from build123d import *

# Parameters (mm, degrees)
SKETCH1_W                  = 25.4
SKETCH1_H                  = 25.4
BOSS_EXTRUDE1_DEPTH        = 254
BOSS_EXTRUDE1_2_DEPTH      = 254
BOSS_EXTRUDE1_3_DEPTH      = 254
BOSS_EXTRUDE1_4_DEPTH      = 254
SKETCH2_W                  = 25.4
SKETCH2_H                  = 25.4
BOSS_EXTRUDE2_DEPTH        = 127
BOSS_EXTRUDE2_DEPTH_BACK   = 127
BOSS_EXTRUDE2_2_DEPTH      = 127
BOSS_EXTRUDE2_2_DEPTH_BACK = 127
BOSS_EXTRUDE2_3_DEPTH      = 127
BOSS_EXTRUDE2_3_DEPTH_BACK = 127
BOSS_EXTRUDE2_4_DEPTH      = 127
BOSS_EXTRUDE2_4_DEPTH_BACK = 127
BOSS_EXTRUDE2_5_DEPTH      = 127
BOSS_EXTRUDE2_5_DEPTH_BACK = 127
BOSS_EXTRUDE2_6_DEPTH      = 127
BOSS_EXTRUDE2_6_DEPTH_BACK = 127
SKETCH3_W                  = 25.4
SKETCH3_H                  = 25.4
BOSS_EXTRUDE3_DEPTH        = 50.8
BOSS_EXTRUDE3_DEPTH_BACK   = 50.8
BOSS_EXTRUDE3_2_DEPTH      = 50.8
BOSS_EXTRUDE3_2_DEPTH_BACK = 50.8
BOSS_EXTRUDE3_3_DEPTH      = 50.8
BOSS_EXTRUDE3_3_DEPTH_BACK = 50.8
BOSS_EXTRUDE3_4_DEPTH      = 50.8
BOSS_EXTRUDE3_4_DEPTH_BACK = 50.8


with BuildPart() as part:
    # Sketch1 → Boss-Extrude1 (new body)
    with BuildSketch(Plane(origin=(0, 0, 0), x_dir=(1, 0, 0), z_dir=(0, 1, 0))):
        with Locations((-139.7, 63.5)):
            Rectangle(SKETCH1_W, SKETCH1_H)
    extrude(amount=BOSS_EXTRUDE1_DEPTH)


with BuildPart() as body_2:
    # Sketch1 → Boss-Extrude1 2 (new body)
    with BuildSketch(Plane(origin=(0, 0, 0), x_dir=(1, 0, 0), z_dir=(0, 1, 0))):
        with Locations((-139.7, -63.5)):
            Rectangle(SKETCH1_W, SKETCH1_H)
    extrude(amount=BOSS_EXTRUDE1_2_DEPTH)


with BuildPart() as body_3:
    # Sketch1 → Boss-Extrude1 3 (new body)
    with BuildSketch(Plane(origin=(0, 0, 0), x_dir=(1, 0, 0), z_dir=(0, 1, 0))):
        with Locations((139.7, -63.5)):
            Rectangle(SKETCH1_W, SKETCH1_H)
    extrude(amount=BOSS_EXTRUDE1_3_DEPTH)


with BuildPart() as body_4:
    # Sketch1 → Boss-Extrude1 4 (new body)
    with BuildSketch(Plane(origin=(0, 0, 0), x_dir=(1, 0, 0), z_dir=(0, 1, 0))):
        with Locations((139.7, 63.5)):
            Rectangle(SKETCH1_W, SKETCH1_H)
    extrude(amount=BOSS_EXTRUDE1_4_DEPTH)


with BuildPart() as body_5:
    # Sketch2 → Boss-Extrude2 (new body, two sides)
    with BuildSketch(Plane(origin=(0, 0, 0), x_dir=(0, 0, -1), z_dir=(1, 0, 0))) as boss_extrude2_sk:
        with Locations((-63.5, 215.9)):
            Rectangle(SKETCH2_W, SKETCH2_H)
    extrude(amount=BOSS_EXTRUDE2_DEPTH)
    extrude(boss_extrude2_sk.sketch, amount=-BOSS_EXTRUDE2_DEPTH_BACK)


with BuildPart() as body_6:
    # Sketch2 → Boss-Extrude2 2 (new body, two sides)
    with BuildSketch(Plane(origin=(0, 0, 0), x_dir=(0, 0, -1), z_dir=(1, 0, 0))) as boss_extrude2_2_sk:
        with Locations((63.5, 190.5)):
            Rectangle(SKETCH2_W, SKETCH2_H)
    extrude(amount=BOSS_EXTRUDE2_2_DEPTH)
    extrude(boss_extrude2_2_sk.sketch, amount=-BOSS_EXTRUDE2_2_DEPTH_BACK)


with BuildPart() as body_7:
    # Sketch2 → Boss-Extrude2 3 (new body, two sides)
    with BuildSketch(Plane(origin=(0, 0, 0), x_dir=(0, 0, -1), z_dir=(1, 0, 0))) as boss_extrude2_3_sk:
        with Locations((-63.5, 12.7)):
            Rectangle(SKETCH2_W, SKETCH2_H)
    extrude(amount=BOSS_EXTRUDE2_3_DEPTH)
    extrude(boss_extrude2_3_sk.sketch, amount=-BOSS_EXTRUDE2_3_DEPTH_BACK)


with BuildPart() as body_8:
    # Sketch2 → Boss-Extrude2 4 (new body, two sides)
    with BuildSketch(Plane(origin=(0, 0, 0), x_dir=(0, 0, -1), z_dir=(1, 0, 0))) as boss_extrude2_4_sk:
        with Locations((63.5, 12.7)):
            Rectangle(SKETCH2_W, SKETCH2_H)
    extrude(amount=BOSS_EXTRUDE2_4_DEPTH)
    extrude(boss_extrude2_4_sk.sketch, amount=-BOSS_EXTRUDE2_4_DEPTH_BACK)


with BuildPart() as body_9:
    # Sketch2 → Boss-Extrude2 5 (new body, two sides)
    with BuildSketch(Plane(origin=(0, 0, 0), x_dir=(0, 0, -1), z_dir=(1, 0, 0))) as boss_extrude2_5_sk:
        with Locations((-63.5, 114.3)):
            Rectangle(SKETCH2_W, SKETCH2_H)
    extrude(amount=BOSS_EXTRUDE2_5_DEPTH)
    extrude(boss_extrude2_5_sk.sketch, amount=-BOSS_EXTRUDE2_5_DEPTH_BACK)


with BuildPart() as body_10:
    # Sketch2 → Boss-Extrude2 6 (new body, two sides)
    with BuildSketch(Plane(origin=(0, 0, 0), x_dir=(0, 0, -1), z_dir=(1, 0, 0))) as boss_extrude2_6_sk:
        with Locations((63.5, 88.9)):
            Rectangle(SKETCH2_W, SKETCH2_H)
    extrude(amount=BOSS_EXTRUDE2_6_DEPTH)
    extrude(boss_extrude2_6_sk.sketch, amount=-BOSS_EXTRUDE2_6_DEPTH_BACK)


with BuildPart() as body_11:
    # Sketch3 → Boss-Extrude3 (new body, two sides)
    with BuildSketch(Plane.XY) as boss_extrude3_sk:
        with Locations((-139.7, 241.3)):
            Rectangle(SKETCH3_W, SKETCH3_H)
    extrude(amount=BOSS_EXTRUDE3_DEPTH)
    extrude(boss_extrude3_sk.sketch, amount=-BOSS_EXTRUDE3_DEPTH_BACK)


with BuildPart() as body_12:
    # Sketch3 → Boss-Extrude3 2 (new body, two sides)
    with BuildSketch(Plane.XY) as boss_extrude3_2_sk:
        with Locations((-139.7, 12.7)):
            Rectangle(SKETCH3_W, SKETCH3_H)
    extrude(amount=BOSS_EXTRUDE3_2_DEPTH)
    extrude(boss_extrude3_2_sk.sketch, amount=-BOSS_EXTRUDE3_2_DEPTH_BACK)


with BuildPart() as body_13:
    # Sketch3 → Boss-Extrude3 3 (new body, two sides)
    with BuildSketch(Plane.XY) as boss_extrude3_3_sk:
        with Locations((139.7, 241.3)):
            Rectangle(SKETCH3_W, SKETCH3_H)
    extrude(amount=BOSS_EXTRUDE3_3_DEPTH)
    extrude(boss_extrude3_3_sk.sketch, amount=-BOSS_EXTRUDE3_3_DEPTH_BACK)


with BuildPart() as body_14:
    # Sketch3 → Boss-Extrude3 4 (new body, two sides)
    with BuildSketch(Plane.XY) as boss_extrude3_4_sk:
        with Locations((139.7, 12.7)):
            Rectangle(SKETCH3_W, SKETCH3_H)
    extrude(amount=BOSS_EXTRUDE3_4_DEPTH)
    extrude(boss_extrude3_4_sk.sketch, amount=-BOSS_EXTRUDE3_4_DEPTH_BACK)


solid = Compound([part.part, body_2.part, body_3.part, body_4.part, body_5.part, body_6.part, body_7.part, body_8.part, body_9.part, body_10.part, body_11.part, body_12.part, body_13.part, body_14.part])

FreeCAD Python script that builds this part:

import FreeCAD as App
import Part
import Sketcher
from FreeCAD import Vector
Q = App.Units.Quantity


def add_polygon(sketch, points):
    """Adds a closed chain of lines whose ends are joined by coincident constraints."""
    first, n = sketch.GeometryCount, len(points)
    for a, b in zip(points, points[1:] + points[:1]):
        sketch.addGeometry(Part.LineSegment(App.Vector(*a, 0), App.Vector(*b, 0)), False)
    for i in range(n):
        sketch.addConstraint(Sketcher.Constraint("Coincident", first + i, 2, first + (i + 1) % n, 1))

doc = App.newDocument("Part")
body = doc.addObject("PartDesign::Body", "Body")

# Sketch on XZ plane
sketch1 = doc.addObject("Sketcher::SketchObject", "Sketch")
body.addObject(sketch1)
sketch1.AttachmentSupport = (doc.XZ_Plane, [""])
sketch1.MapMode = "FlatFace"
add_polygon(sketch1, [(-152.4, -76.2), (-152.4, -50.8), (-127, -50.8), (-127, -76.2)])  # lines 0-3
sketch1.addConstraint(Sketcher.Constraint("Vertical", 0))
sketch1.addConstraint(Sketcher.Constraint("Horizontal", 1))
sketch1.addConstraint(Sketcher.Constraint("Vertical", 2))
sketch1.addConstraint(Sketcher.Constraint("Horizontal", 3))
sketch1.addConstraint(Sketcher.Constraint("Equal", 3, 0))
sketch1.addConstraint(Sketcher.Constraint("DistanceX", 1, 1, 1, 2, Q("1 in")))
sketch1.addConstraint(Sketcher.Constraint("DistanceX", 0, 2, -1, 1, Q("6 in")))
sketch1.addConstraint(Sketcher.Constraint("DistanceY", 0, 2, -1, 1, Q("2 in")))
pad1 = doc.addObject("PartDesign::Pad", "Pad")
body.addObject(pad1)
pad1.Profile = sketch1
pad1.Length = Q("10 in")
pad1.Reversed = True
body2 = doc.addObject("PartDesign::Body", "Body001")

# Sketch on XZ plane
sketch2 = doc.addObject("Sketcher::SketchObject", "Sketch001")
body2.addObject(sketch2)
sketch2.AttachmentSupport = (doc.getObject("XZ_Plane001"), [""])
sketch2.MapMode = "FlatFace"
add_polygon(sketch2, [(-152.4, 50.8), (-152.4, 76.2), (-127, 76.2), (-127, 50.8)])  # lines 0-3
sketch2.addConstraint(Sketcher.Constraint("Vertical", 0))
sketch2.addConstraint(Sketcher.Constraint("Horizontal", 1))
sketch2.addConstraint(Sketcher.Constraint("Vertical", 2))
sketch2.addConstraint(Sketcher.Constraint("Horizontal", 3))
sketch2.addConstraint(Sketcher.Constraint("Equal", 3, 0))
sketch2.addConstraint(Sketcher.Constraint("DistanceX", 1, 1, 1, 2, Q("1 in")))
sketch2.addConstraint(Sketcher.Constraint("DistanceX", 0, 2, -1, 1, Q("6 in")))
sketch2.addConstraint(Sketcher.Constraint("DistanceY", -1, 1, 0, 2, Q("3 in")))
pad2 = doc.addObject("PartDesign::Pad", "Pad001")
body2.addObject(pad2)
pad2.Profile = sketch2
pad2.Length = Q("10 in")
pad2.Reversed = True
body3 = doc.addObject("PartDesign::Body", "Body002")

# Sketch on XZ plane
sketch3 = doc.addObject("Sketcher::SketchObject", "Sketch002")
body3.addObject(sketch3)
sketch3.AttachmentSupport = (doc.getObject("XZ_Plane002"), [""])
sketch3.MapMode = "FlatFace"
add_polygon(sketch3, [(127, 50.8), (127, 76.2), (152.4, 76.2), (152.4, 50.8)])  # lines 0-3
sketch3.addConstraint(Sketcher.Constraint("Vertical", 0))
sketch3.addConstraint(Sketcher.Constraint("Horizontal", 1))
sketch3.addConstraint(Sketcher.Constraint("Vertical", 2))
sketch3.addConstraint(Sketcher.Constraint("Horizontal", 3))
sketch3.addConstraint(Sketcher.Constraint("Equal", 3, 0))
sketch3.addConstraint(Sketcher.Constraint("DistanceX", 1, 1, 1, 2, Q("1 in")))
sketch3.addConstraint(Sketcher.Constraint("DistanceX", -1, 1, 0, 2, Q("5 in")))
sketch3.addConstraint(Sketcher.Constraint("DistanceY", -1, 1, 0, 2, Q("3 in")))
pad3 = doc.addObject("PartDesign::Pad", "Pad002")
body3.addObject(pad3)
pad3.Profile = sketch3
pad3.Length = Q("10 in")
pad3.Reversed = True
body4 = doc.addObject("PartDesign::Body", "Body003")

# Sketch on XZ plane
sketch4 = doc.addObject("Sketcher::SketchObject", "Sketch003")
body4.addObject(sketch4)
sketch4.AttachmentSupport = (doc.getObject("XZ_Plane003"), [""])
sketch4.MapMode = "FlatFace"
add_polygon(sketch4, [(127, -76.2), (127, -50.8), (152.4, -50.8), (152.4, -76.2)])  # lines 0-3
sketch4.addConstraint(Sketcher.Constraint("Vertical", 0))
sketch4.addConstraint(Sketcher.Constraint("Horizontal", 1))
sketch4.addConstraint(Sketcher.Constraint("Vertical", 2))
sketch4.addConstraint(Sketcher.Constraint("Horizontal", 3))
sketch4.addConstraint(Sketcher.Constraint("Equal", 3, 0))
sketch4.addConstraint(Sketcher.Constraint("DistanceX", 1, 1, 1, 2, Q("1 in")))
sketch4.addConstraint(Sketcher.Constraint("DistanceX", -1, 1, 0, 2, Q("5 in")))
sketch4.addConstraint(Sketcher.Constraint("DistanceY", 0, 2, -1, 1, Q("2 in")))
pad4 = doc.addObject("PartDesign::Pad", "Pad003")
body4.addObject(pad4)
pad4.Profile = sketch4
pad4.Length = Q("10 in")
pad4.Reversed = True
body5 = doc.addObject("PartDesign::Body", "Body004")

# Sketch on YZ plane
sketch5 = doc.addObject("Sketcher::SketchObject", "Sketch004")
body5.addObject(sketch5)
sketch5.AttachmentSupport = (doc.getObject("YZ_Plane004"), [""])
sketch5.MapMode = "FlatFace"
add_polygon(sketch5, [(228.6, 76.2), (203.2, 76.2), (203.2, 50.8), (228.6, 50.8)])  # lines 0-3
sketch5.addConstraint(Sketcher.Constraint("Horizontal", 0))
sketch5.addConstraint(Sketcher.Constraint("Vertical", 1))
sketch5.addConstraint(Sketcher.Constraint("Horizontal", 2))
sketch5.addConstraint(Sketcher.Constraint("Vertical", 3))
sketch5.addConstraint(Sketcher.Constraint("Equal", 2, 1))
sketch5.addConstraint(Sketcher.Constraint("DistanceX", 0, 2, 0, 1, Q("1 in")))
sketch5.addConstraint(Sketcher.Constraint("DistanceX", -1, 1, 0, 2, Q("8 in")))
sketch5.addConstraint(Sketcher.Constraint("DistanceY", -1, 1, 0, 2, Q("3 in")))
pad5 = doc.addObject("PartDesign::Pad", "Pad004")
body5.addObject(pad5)
pad5.Profile = sketch5
pad5.Type = "TwoLengths"
pad5.Length = Q("5 in")
pad5.Length2 = Q("5 in")
body6 = doc.addObject("PartDesign::Body", "Body005")

# Sketch on YZ plane
sketch6 = doc.addObject("Sketcher::SketchObject", "Sketch005")
body6.addObject(sketch6)
sketch6.AttachmentSupport = (doc.getObject("YZ_Plane005"), [""])
sketch6.MapMode = "FlatFace"
add_polygon(sketch6, [(203.2, -50.8), (177.8, -50.8), (177.8, -76.2), (203.2, -76.2)])  # lines 0-3
sketch6.addConstraint(Sketcher.Constraint("Horizontal", 0))
sketch6.addConstraint(Sketcher.Constraint("Vertical", 1))
sketch6.addConstraint(Sketcher.Constraint("Horizontal", 2))
sketch6.addConstraint(Sketcher.Constraint("Vertical", 3))
sketch6.addConstraint(Sketcher.Constraint("Equal", 2, 1))
sketch6.addConstraint(Sketcher.Constraint("DistanceX", 0, 2, 0, 1, Q("1 in")))
sketch6.addConstraint(Sketcher.Constraint("DistanceX", -1, 1, 0, 2, Q("7 in")))
sketch6.addConstraint(Sketcher.Constraint("DistanceY", 0, 2, -1, 1, Q("2 in")))
pad6 = doc.addObject("PartDesign::Pad", "Pad005")
body6.addObject(pad6)
pad6.Profile = sketch6
pad6.Type = "TwoLengths"
pad6.Length = Q("5 in")
pad6.Length2 = Q("5 in")
body7 = doc.addObject("PartDesign::Body", "Body006")

# Sketch on YZ plane
sketch7 = doc.addObject("Sketcher::SketchObject", "Sketch006")
body7.addObject(sketch7)
sketch7.AttachmentSupport = (doc.getObject("YZ_Plane006"), [""])
sketch7.MapMode = "FlatFace"
add_polygon(sketch7, [(25.4, 76.2), (0, 76.2), (0, 50.8), (25.4, 50.8)])  # lines 0-3
sketch7.addConstraint(Sketcher.Constraint("Horizontal", 0))
sketch7.addConstraint(Sketcher.Constraint("Vertical", 1))
sketch7.addConstraint(Sketcher.Constraint("Horizontal", 2))
sketch7.addConstraint(Sketcher.Constraint("Vertical", 3))
sketch7.addConstraint(Sketcher.Constraint("PointOnObject", 0, 2, -2))
sketch7.addConstraint(Sketcher.Constraint("Equal", 2, 1))
sketch7.addConstraint(Sketcher.Constraint("DistanceX", 0, 2, 0, 1, Q("1 in")))
sketch7.addConstraint(Sketcher.Constraint("DistanceY", -1, 1, 0, 2, Q("3 in")))
pad7 = doc.addObject("PartDesign::Pad", "Pad006")
body7.addObject(pad7)
pad7.Profile = sketch7
pad7.Type = "TwoLengths"
pad7.Length = Q("5 in")
pad7.Length2 = Q("5 in")
body8 = doc.addObject("PartDesign::Body", "Body007")

# Sketch on YZ plane
sketch8 = doc.addObject("Sketcher::SketchObject", "Sketch007")
body8.addObject(sketch8)
sketch8.AttachmentSupport = (doc.getObject("YZ_Plane007"), [""])
sketch8.MapMode = "FlatFace"
add_polygon(sketch8, [(25.4, -50.8), (0, -50.8), (0, -76.2), (25.4, -76.2)])  # lines 0-3
sketch8.addConstraint(Sketcher.Constraint("Horizontal", 0))
sketch8.addConstraint(Sketcher.Constraint("Vertical", 1))
sketch8.addConstraint(Sketcher.Constraint("Horizontal", 2))
sketch8.addConstraint(Sketcher.Constraint("Vertical", 3))
sketch8.addConstraint(Sketcher.Constraint("PointOnObject", 0, 2, -2))
sketch8.addConstraint(Sketcher.Constraint("Equal", 2, 1))
sketch8.addConstraint(Sketcher.Constraint("DistanceX", 0, 2, 0, 1, Q("1 in")))
sketch8.addConstraint(Sketcher.Constraint("DistanceY", 0, 2, -1, 1, Q("2 in")))
pad8 = doc.addObject("PartDesign::Pad", "Pad007")
body8.addObject(pad8)
pad8.Profile = sketch8
pad8.Type = "TwoLengths"
pad8.Length = Q("5 in")
pad8.Length2 = Q("5 in")
body9 = doc.addObject("PartDesign::Body", "Body008")

# Sketch on YZ plane
sketch9 = doc.addObject("Sketcher::SketchObject", "Sketch008")
body9.addObject(sketch9)
sketch9.AttachmentSupport = (doc.getObject("YZ_Plane008"), [""])
sketch9.MapMode = "FlatFace"
add_polygon(sketch9, [(127, 76.2), (101.6, 76.2), (101.6, 50.8), (127, 50.8)])  # lines 0-3
sketch9.addConstraint(Sketcher.Constraint("Horizontal", 0))
sketch9.addConstraint(Sketcher.Constraint("Vertical", 1))
sketch9.addConstraint(Sketcher.Constraint("Horizontal", 2))
sketch9.addConstraint(Sketcher.Constraint("Vertical", 3))
sketch9.addConstraint(Sketcher.Constraint("Equal", 2, 1))
sketch9.addConstraint(Sketcher.Constraint("DistanceX", 0, 2, 0, 1, Q("1 in")))
sketch9.addConstraint(Sketcher.Constraint("DistanceX", -1, 1, 0, 2, Q("4 in")))
sketch9.addConstraint(Sketcher.Constraint("DistanceY", -1, 1, 0, 2, Q("3 in")))
pad9 = doc.addObject("PartDesign::Pad", "Pad008")
body9.addObject(pad9)
pad9.Profile = sketch9
pad9.Type = "TwoLengths"
pad9.Length = Q("5 in")
pad9.Length2 = Q("5 in")
body10 = doc.addObject("PartDesign::Body", "Body009")

# Sketch on YZ plane
sketch10 = doc.addObject("Sketcher::SketchObject", "Sketch009")
body10.addObject(sketch10)
sketch10.AttachmentSupport = (doc.getObject("YZ_Plane009"), [""])
sketch10.MapMode = "FlatFace"
add_polygon(sketch10, [(101.6, -50.8), (76.2, -50.8), (76.2, -76.2), (101.6, -76.2)])  # lines 0-3
sketch10.addConstraint(Sketcher.Constraint("Horizontal", 0))
sketch10.addConstraint(Sketcher.Constraint("Vertical", 1))
sketch10.addConstraint(Sketcher.Constraint("Horizontal", 2))
sketch10.addConstraint(Sketcher.Constraint("Vertical", 3))
sketch10.addConstraint(Sketcher.Constraint("Equal", 2, 1))
sketch10.addConstraint(Sketcher.Constraint("DistanceX", 0, 2, 0, 1, Q("1 in")))
sketch10.addConstraint(Sketcher.Constraint("DistanceX", -1, 1, 0, 2, Q("3 in")))
sketch10.addConstraint(Sketcher.Constraint("DistanceY", 0, 2, -1, 1, Q("2 in")))
pad10 = doc.addObject("PartDesign::Pad", "Pad009")
body10.addObject(pad10)
pad10.Profile = sketch10
pad10.Type = "TwoLengths"
pad10.Length = Q("5 in")
pad10.Length2 = Q("5 in")
body11 = doc.addObject("PartDesign::Body", "Body010")

# Sketch on XY plane
sketch11 = doc.addObject("Sketcher::SketchObject", "Sketch010")
body11.addObject(sketch11)
sketch11.AttachmentSupport = (doc.getObject("XY_Plane010"), [""])
sketch11.MapMode = "FlatFace"
add_polygon(sketch11, [(-152.4, 254), (-152.4, 228.6), (-127, 228.6), (-127, 254)])  # lines 0-3
sketch11.addConstraint(Sketcher.Constraint("Vertical", 0))
sketch11.addConstraint(Sketcher.Constraint("Horizontal", 1))
sketch11.addConstraint(Sketcher.Constraint("Vertical", 2))
sketch11.addConstraint(Sketcher.Constraint("Horizontal", 3))
sketch11.addConstraint(Sketcher.Constraint("Equal", 3, 0))
sketch11.addConstraint(Sketcher.Constraint("DistanceX", 1, 1, 1, 2, Q("1 in")))
sketch11.addConstraint(Sketcher.Constraint("DistanceX", 0, 2, -1, 1, Q("6 in")))
sketch11.addConstraint(Sketcher.Constraint("DistanceY", -1, 1, 0, 2, Q("9 in")))
pad11 = doc.addObject("PartDesign::Pad", "Pad010")
body11.addObject(pad11)
pad11.Profile = sketch11
pad11.Type = "TwoLengths"
pad11.Length = Q("2 in")
pad11.Length2 = Q("2 in")
body12 = doc.addObject("PartDesign::Body", "Body011")

# Sketch on XY plane
sketch12 = doc.addObject("Sketcher::SketchObject", "Sketch011")
body12.addObject(sketch12)
sketch12.AttachmentSupport = (doc.getObject("XY_Plane011"), [""])
sketch12.MapMode = "FlatFace"
add_polygon(sketch12, [(-152.4, 25.4), (-152.4, 0), (-127, 0), (-127, 25.4)])  # lines 0-3
sketch12.addConstraint(Sketcher.Constraint("Vertical", 0))
sketch12.addConstraint(Sketcher.Constraint("Horizontal", 1))
sketch12.addConstraint(Sketcher.Constraint("Vertical", 2))
sketch12.addConstraint(Sketcher.Constraint("Horizontal", 3))
sketch12.addConstraint(Sketcher.Constraint("PointOnObject", 0, 2, -1))
sketch12.addConstraint(Sketcher.Constraint("Equal", 3, 0))
sketch12.addConstraint(Sketcher.Constraint("DistanceX", 1, 1, 1, 2, Q("1 in")))
sketch12.addConstraint(Sketcher.Constraint("DistanceX", 0, 2, -1, 1, Q("6 in")))
pad12 = doc.addObject("PartDesign::Pad", "Pad011")
body12.addObject(pad12)
pad12.Profile = sketch12
pad12.Type = "TwoLengths"
pad12.Length = Q("2 in")
pad12.Length2 = Q("2 in")
body13 = doc.addObject("PartDesign::Body", "Body012")

# Sketch on XY plane
sketch13 = doc.addObject("Sketcher::SketchObject", "Sketch012")
body13.addObject(sketch13)
sketch13.AttachmentSupport = (doc.getObject("XY_Plane012"), [""])
sketch13.MapMode = "FlatFace"
add_polygon(sketch13, [(127, 254), (127, 228.6), (152.4, 228.6), (152.4, 254)])  # lines 0-3
sketch13.addConstraint(Sketcher.Constraint("Vertical", 0))
sketch13.addConstraint(Sketcher.Constraint("Horizontal", 1))
sketch13.addConstraint(Sketcher.Constraint("Vertical", 2))
sketch13.addConstraint(Sketcher.Constraint("Horizontal", 3))
sketch13.addConstraint(Sketcher.Constraint("Equal", 3, 0))
sketch13.addConstraint(Sketcher.Constraint("DistanceX", 1, 1, 1, 2, Q("1 in")))
sketch13.addConstraint(Sketcher.Constraint("DistanceX", -1, 1, 0, 2, Q("5 in")))
sketch13.addConstraint(Sketcher.Constraint("DistanceY", -1, 1, 0, 2, Q("9 in")))
pad13 = doc.addObject("PartDesign::Pad", "Pad012")
body13.addObject(pad13)
pad13.Profile = sketch13
pad13.Type = "TwoLengths"
pad13.Length = Q("2 in")
pad13.Length2 = Q("2 in")
body14 = doc.addObject("PartDesign::Body", "Body013")

# Sketch on XY plane
sketch14 = doc.addObject("Sketcher::SketchObject", "Sketch013")
body14.addObject(sketch14)
sketch14.AttachmentSupport = (doc.getObject("XY_Plane013"), [""])
sketch14.MapMode = "FlatFace"
add_polygon(sketch14, [(127, 25.4), (127, 0), (152.4, 0), (152.4, 25.4)])  # lines 0-3
sketch14.addConstraint(Sketcher.Constraint("Vertical", 0))
sketch14.addConstraint(Sketcher.Constraint("Horizontal", 1))
sketch14.addConstraint(Sketcher.Constraint("Vertical", 2))
sketch14.addConstraint(Sketcher.Constraint("Horizontal", 3))
sketch14.addConstraint(Sketcher.Constraint("PointOnObject", 0, 2, -1))
sketch14.addConstraint(Sketcher.Constraint("Equal", 3, 0))
sketch14.addConstraint(Sketcher.Constraint("DistanceX", 1, 1, 1, 2, Q("1 in")))
sketch14.addConstraint(Sketcher.Constraint("DistanceX", -1, 1, 0, 2, Q("5 in")))
pad14 = doc.addObject("PartDesign::Pad", "Pad013")
body14.addObject(pad14)
pad14.Profile = sketch14
pad14.Type = "TwoLengths"
pad14.Length = Q("2 in")
pad14.Length2 = Q("2 in")

doc.recompute()
